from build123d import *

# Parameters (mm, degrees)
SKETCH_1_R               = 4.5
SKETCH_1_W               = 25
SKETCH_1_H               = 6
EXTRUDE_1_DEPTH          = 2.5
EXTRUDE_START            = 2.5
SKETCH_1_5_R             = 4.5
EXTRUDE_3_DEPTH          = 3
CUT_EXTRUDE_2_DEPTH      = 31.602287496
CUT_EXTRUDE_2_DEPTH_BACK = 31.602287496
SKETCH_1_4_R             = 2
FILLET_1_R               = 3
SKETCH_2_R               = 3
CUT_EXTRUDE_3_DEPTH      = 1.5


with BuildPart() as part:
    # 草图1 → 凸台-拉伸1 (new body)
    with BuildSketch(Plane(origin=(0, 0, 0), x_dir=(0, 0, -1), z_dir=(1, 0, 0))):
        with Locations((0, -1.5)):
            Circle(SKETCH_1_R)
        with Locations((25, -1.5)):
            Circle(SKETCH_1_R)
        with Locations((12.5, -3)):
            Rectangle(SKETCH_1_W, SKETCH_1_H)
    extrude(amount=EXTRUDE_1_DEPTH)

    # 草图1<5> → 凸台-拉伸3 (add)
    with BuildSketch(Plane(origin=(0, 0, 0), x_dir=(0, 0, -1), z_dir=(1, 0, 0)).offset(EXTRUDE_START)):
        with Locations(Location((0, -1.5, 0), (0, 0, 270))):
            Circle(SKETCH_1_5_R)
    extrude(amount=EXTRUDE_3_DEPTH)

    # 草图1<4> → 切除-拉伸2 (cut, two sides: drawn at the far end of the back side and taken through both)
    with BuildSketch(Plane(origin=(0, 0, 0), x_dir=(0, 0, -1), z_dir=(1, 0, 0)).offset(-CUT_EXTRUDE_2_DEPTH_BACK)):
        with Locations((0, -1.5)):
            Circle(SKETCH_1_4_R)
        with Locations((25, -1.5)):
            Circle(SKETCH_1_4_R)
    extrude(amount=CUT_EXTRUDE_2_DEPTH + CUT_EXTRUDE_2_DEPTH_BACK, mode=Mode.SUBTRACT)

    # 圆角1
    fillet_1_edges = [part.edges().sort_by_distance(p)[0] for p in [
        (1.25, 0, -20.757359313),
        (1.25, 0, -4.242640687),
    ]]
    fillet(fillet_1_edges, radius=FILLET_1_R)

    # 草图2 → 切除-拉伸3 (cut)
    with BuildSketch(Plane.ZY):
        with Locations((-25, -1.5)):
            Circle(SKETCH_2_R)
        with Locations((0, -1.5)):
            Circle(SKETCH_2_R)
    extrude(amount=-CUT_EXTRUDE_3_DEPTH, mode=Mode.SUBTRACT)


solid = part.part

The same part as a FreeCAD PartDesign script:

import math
import FreeCAD as App
import Part
import Sketcher


def edges_at(feature, points):
    """Names of the edges that pass closest to the given points."""
    edges = feature.Shape.Edges
    near = lambda p: min(range(len(edges)), key=lambda i: edges[i].distToShape(Part.Vertex(*p))[0])
    return sorted({f"Edge{near(p) + 1}" for p in points})

doc = App.newDocument("Part")
body = doc.addObject("PartDesign::Body", "Body")

# Sketch on YZ plane
sketch1 = body.newObject("Sketcher::SketchObject", "Sketch")
sketch1.AttachmentSupport = (doc.getObject("YZ_Plane"), [""])
sketch1.MapMode = "FlatFace"
sketch1.addGeometry([
    Part.ArcOfCircle(Part.Circle(App.Vector(-1.5, 0, 0), App.Vector(0, 0, 1), 4.5), math.radians(-70.528779), math.radians(180)),
    Part.LineSegment(App.Vector(-6, 0, 0), App.Vector(-6, -25, 0)),
    Part.ArcOfCircle(Part.Circle(App.Vector(-1.5, -25, 0), App.Vector(0, 0, 1), 4.5), math.radians(180), math.radians(430.528779)),
    Part.LineSegment(App.Vector(0, -20.757359, 0), App.Vector(0, -4.242641, 0)),
], False)
sketch1.addConstraint([
    Sketcher.Constraint("Tangent", 0, 2, 1, 1),
    Sketcher.Constraint("Tangent", 1, 2, 2, 1),
    Sketcher.Constraint("Coincident", 2, 2, 3, 1),
    Sketcher.Constraint("Coincident", 3, 2, 0, 1),
    Sketcher.Constraint("Vertical", 1),
    Sketcher.Constraint("Vertical", 3),
    Sketcher.Constraint("Equal", 0, 2),
    Sketcher.Constraint("PointOnObject", 0, 3, -1),
    Sketcher.Constraint("PointOnObject", 2, 2, -2),
    Sketcher.Constraint("Radius", 0, 4.5),
    Sketcher.Constraint("DistanceY", 1, 2, 1, 1, 25.0),
    Sketcher.Constraint("DistanceX", 0, 2, -1, 1, 6.0),
])
pad1 = body.newObject("PartDesign::Pad", "Pad")
pad1.Profile = sketch1
pad1.Length = 2.5

# Sketch on YZ plane
sketch2 = body.newObject("Sketcher::SketchObject", "Sketch001")
sketch2.AttachmentSupport = (doc.getObject("YZ_Plane"), [""])
sketch2.MapMode = "FlatFace"
sketch2.AttachmentOffset = App.Placement(App.Vector(0, 0, 2.5), App.Rotation())
sketch2.addGeometry(Part.Circle(App.Vector(-1.5, 0, 0), App.Vector(0, 0, 1), 4.5), False)
sketch2.addConstraint([
    Sketcher.Constraint("PointOnObject", 0, 3, -1),
    Sketcher.Constraint("Diameter", 0, 9.0),
    Sketcher.Constraint("DistanceX", 0, 3, -1, 1, 1.5),
])
pad2 = body.newObject("PartDesign::Pad", "Pad001")
pad2.Profile = sketch2
pad2.Length = 3

# Sketch on YZ plane
sketch3 = body.newObject("Sketcher::SketchObject", "Sketch002")
sketch3.AttachmentSupport = (doc.getObject("YZ_Plane"), [""])
sketch3.MapMode = "FlatFace"
sketch3.addGeometry([
    Part.Circle(App.Vector(-1.5, 0, 0), App.Vector(0, 0, 1), 2),
    Part.Circle(App.Vector(-1.5, -25, 0), App.Vector(0, 0, 1), 2),
], False)
sketch3.addConstraint([
    Sketcher.Constraint("Equal", 0, 1),
    Sketcher.Constraint("PointOnObject", 0, 3, -1),
    Sketcher.Constraint("Vertical", 0, 3, 1, 3),
    Sketcher.Constraint("Diameter", 0, 4.0),
    Sketcher.Constraint("DistanceY", 1, 3, -1, 1, 25.0),
    Sketcher.Constraint("DistanceX", 0, 3, -1, 1, 1.5),
])
pocket1 = body.newObject("PartDesign::Pocket", "Pocket")
pocket1.Profile = sketch3
pocket1.Type = "ThroughAll"
pocket1.Midplane = True
doc.recompute()

fillet = body.newObject("PartDesign::Fillet", "Fillet")
fillet.Base = (pocket1, edges_at(pocket1, [(1.25, 0, -20.757), (1.25, 0, -4.243)]))
fillet.Radius = 3

# Sketch on YZ plane
sketch4 = body.newObject("Sketcher::SketchObject", "Sketch003")
sketch4.AttachmentSupport = (doc.getObject("YZ_Plane"), [""])
sketch4.MapMode = "FlatFace"
sketch4.addGeometry([
    Part.Circle(App.Vector(-1.5, -25, 0), App.Vector(0, 0, 1), 3),
    Part.Circle(App.Vector(-1.5, 0, 0), App.Vector(0, 0, 1), 3),
], False)
sketch4.addConstraint([
    Sketcher.Constraint("Equal", 0, 1),
    Sketcher.Constraint("PointOnObject", 1, 3, -1),
    Sketcher.Constraint("Vertical", 0, 3, 1, 3),
    Sketcher.Constraint("Diameter", 0, 6.0),
    Sketcher.Constraint("DistanceY", 0, 3, -1, 1, 25.0),
    Sketcher.Constraint("DistanceX", 0, 3, -1, 1, 1.5),
])
pocket2 = body.newObject("PartDesign::Pocket", "Pocket001")
pocket2.Profile = sketch4
pocket2.Length = 1.5
pocket2.Reversed = True

doc.recompute()
